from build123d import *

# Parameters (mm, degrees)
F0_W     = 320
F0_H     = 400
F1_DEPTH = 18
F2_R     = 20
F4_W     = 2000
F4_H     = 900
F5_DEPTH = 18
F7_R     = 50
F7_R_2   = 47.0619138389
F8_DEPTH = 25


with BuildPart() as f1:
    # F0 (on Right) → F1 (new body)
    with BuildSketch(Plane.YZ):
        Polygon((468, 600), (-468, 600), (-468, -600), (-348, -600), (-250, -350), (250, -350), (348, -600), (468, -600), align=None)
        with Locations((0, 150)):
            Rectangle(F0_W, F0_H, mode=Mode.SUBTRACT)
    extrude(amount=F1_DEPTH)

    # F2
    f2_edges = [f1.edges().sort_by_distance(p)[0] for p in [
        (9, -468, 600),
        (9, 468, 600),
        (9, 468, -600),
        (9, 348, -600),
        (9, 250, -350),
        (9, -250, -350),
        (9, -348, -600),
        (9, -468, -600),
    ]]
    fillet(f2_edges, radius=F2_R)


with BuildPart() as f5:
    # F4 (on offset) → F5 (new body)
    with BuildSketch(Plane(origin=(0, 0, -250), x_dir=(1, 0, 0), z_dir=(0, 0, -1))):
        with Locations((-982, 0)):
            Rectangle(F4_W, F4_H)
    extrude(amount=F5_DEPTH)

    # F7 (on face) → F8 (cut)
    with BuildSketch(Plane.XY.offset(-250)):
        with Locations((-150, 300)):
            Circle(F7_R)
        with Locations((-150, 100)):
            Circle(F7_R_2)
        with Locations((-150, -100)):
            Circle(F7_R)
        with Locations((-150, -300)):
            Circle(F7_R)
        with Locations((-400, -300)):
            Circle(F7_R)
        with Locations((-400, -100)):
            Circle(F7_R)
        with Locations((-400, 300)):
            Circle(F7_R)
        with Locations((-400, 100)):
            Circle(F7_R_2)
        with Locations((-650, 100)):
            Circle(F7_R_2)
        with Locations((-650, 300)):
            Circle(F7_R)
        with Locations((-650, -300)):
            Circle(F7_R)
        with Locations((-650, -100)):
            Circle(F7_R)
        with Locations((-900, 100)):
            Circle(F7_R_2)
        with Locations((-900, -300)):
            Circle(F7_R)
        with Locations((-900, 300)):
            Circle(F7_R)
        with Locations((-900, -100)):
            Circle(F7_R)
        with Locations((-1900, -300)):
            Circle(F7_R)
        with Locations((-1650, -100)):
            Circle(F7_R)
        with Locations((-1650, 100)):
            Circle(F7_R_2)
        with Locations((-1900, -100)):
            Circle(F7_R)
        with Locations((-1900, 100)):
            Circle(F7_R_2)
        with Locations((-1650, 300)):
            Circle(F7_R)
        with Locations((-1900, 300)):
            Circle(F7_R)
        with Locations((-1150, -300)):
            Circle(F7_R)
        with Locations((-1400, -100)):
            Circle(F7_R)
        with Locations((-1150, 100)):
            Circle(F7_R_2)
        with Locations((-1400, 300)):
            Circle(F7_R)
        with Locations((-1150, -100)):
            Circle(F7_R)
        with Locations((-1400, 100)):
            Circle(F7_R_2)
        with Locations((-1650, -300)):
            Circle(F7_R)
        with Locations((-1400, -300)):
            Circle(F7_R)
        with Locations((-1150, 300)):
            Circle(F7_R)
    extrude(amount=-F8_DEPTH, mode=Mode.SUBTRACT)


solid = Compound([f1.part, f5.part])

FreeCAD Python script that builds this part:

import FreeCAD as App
import Part
import Sketcher


def edges_at(feature, points):
    """Names of the edges that pass closest to the given points."""
    edges = feature.Shape.Edges
    near = lambda p: min(range(len(edges)), key=lambda i: edges[i].distToShape(Part.Vertex(*p))[0])
    return sorted({f"Edge{near(p) + 1}" for p in points})


def add_polygon(sketch, points):
    """Adds a closed chain of lines whose ends are joined by coincident constraints."""
    first, n = sketch.GeometryCount, len(points)
    for a, b in zip(points, points[1:] + points[:1]):
        sketch.addGeometry(Part.LineSegment(App.Vector(*a, 0), App.Vector(*b, 0)), False)
    for i in range(n):
        sketch.addConstraint(Sketcher.Constraint("Coincident", first + i, 2, first + (i + 1) % n, 1))

doc = App.newDocument("Part")
params = doc.addObject("Spreadsheet::Sheet", "Params")
for row, (alias, value) in enumerate([
    ("sketch1_width", "936 mm"),
    ("sketch1_width2", "120 mm"),
    ("sketch1_width3", "500 mm"),
    ("sketch1_width4", "320 mm"),
    ("sketch1_height", "1200 mm"),
    ("pad1_length", "18 mm"),
    ("fillet_radius", "20 mm"),
    ("sketch2_width", "2000 mm"),
    ("sketch2_height", "900 mm"),
    ("pad2_length", "18 mm"),
    ("sketch3_diameter", "100 mm"),
    ("pocket1_length", "25 mm"),
], start=1):
    params.set(f"A{row}", alias)
    params.set(f"B{row}", "=" + value)
    params.setAlias(f"B{row}", alias)

body = doc.addObject("PartDesign::Body", "Body")

# Sketch on YZ plane
sketch1 = body.newObject("Sketcher::SketchObject", "Sketch")
sketch1.AttachmentSupport = (doc.getObject("YZ_Plane"), [""])
sketch1.MapMode = "FlatFace"
add_polygon(sketch1, [(468, 600), (-468, 600), (-468, -600), (-348, -600), (-250, -350), (250, -350), (348, -600), (468, -600)])  # lines 0-7
add_polygon(sketch1, [(160, -50), (-160, -50), (-160, 350), (160, 350)])  # lines 8-11
sketch1.addConstraint(Sketcher.Constraint("Horizontal", 0))
sketch1.addConstraint(Sketcher.Constraint("Vertical", 1))
sketch1.addConstraint(Sketcher.Constraint("Horizontal", 2))
sketch1.addConstraint(Sketcher.Constraint("Horizontal", 4))
sketch1.addConstraint(Sketcher.Constraint("Horizontal", 6))
sketch1.addConstraint(Sketcher.Constraint("Vertical", 7))
sketch1.addConstraint(Sketcher.Constraint("Horizontal", 8))
sketch1.addConstraint(Sketcher.Constraint("Vertical", 9))
sketch1.addConstraint(Sketcher.Constraint("Horizontal", 10))
sketch1.addConstraint(Sketcher.Constraint("Vertical", 11))
sketch1.addConstraint(Sketcher.Constraint("Symmetric", 0, 2, 6, 2, -1, 1))
sketch1.addConstraint(Sketcher.Constraint("Symmetric", 2, 2, 5, 2, -2))
sketch1.addConstraint(Sketcher.Constraint("Equal", 3, 5))
sketch1.addConstraint(Sketcher.Constraint("DistanceX", 0, 2, 0, 1, 936.0))
sketch1.addConstraint(Sketcher.Constraint("DistanceX", 2, 1, 2, 2, 120.0))
sketch1.addConstraint(Sketcher.Constraint("DistanceX", 4, 1, 4, 2, 500.0))
sketch1.addConstraint(Sketcher.Constraint("DistanceX", 8, 2, 8, 1, 320.0))
sketch1.addConstraint(Sketcher.Constraint("DistanceY", 1, 2, 1, 1, 1200.0))
sketch1.addConstraint(Sketcher.Constraint("DistanceY", 9, 1, 9, 2, 400.0))
sketch1.addConstraint(Sketcher.Constraint("DistanceY", 3, 2, -1, 1, 350.0))
sketch1.addConstraint(Sketcher.Constraint("DistanceX", 8, 2, -1, 1, 160.0))
sketch1.addConstraint(Sketcher.Constraint("DistanceY", 8, 2, -1, 1, 50.0))
sketch1.setExpression("Constraints[25]", "Params.sketch1_width")
sketch1.setExpression("Constraints[26]", "Params.sketch1_width2")
sketch1.setExpression("Constraints[27]", "Params.sketch1_width3")
sketch1.setExpression("Constraints[28]", "Params.sketch1_width4")
sketch1.setExpression("Constraints[29]", "Params.sketch1_height")
pad1 = body.newObject("PartDesign::Pad", "Pad")
pad1.Profile = sketch1
pad1.setExpression("Length", "Params.pad1_length")
doc.recompute()

fillet = body.newObject("PartDesign::Fillet", "Fillet")
fillet.Base = (pad1, edges_at(pad1, [
    (9, -468, 600),
    (9, 468, 600),
    (9, 468, -600),
    (9, 348, -600),
    (9, 250, -350),
    (9, -250, -350),
    (9, -348, -600),
    (9, -468, -600),
]))
fillet.setExpression("Radius", "Params.fillet_radius")
body2 = doc.addObject("PartDesign::Body", "Body001")

# Sketch on XY plane
sketch2 = body2.newObject("Sketcher::SketchObject", "Sketch001")
sketch2.AttachmentSupport = (doc.getObject("XY_Plane001"), [""])
sketch2.MapMode = "FlatFace"
sketch2.AttachmentOffset = App.Placement(App.Vector(0, 0, -250), App.Rotation())
add_polygon(sketch2, [(-1982, -450), (-1982, 450), (18, 450), (18, -450)])  # lines 0-3
sketch2.addConstraint(Sketcher.Constraint("Vertical", 0))
sketch2.addConstraint(Sketcher.Constraint("Horizontal", 1))
sketch2.addConstraint(Sketcher.Constraint("Vertical", 2))
sketch2.addConstraint(Sketcher.Constraint("Horizontal", 3))
sketch2.addConstraint(Sketcher.Constraint("DistanceX", 1, 1, 1, 2, 2000.0))
sketch2.addConstraint(Sketcher.Constraint("DistanceY", 0, 1, 0, 2, 900.0))
sketch2.addConstraint(Sketcher.Constraint("DistanceX", 0, 2, -1, 1, 1982.0))
sketch2.addConstraint(Sketcher.Constraint("DistanceY", -1, 1, 0, 2, 450.0))
sketch2.setExpression("Constraints[8]", "Params.sketch2_width")
sketch2.setExpression("Constraints[9]", "Params.sketch2_height")
pad2 = body2.newObject("PartDesign::Pad", "Pad001")
pad2.Profile = sketch2
pad2.setExpression("Length", "Params.pad2_length")
pad2.Reversed = True

# Sketch on XY plane
sketch3 = body2.newObject("Sketcher::SketchObject", "Sketch002")
sketch3.AttachmentSupport = (doc.getObject("XY_Plane001"), [""])
sketch3.MapMode = "FlatFace"
sketch3.AttachmentOffset = App.Placement(App.Vector(0, 0, -250), App.Rotation())
sketch3.addGeometry(Part.Circle(App.Vector(-150, 300, 0), App.Vector(0, 0, 1), 50), False)
sketch3.addGeometry(Part.Circle(App.Vector(-150, 100, 0), App.Vector(0, 0, 1), 47), False)
sketch3.addGeometry(Part.Circle(App.Vector(-150, -100, 0), App.Vector(0, 0, 1), 50), False)
sketch3.addGeometry(Part.Circle(App.Vector(-150, -300, 0), App.Vector(0, 0, 1), 50), False)
sketch3.addGeometry(Part.Circle(App.Vector(-400, -300, 0), App.Vector(0, 0, 1), 50), False)
sketch3.addGeometry(Part.Circle(App.Vector(-400, -100, 0), App.Vector(0, 0, 1), 50), False)
sketch3.addGeometry(Part.Circle(App.Vector(-400, 300, 0), App.Vector(0, 0, 1), 50), False)
sketch3.addGeometry(Part.Circle(App.Vector(-400, 100, 0), App.Vector(0, 0, 1), 47), False)
sketch3.addGeometry(Part.Circle(App.Vector(-650, 100, 0), App.Vector(0, 0, 1), 47), False)
sketch3.addGeometry(Part.Circle(App.Vector(-650, 300, 0), App.Vector(0, 0, 1), 50), False)
sketch3.addGeometry(Part.Circle(App.Vector(-650, -300, 0), App.Vector(0, 0, 1), 50), False)
sketch3.addGeometry(Part.Circle(App.Vector(-650, -100, 0), App.Vector(0, 0, 1), 50), False)
sketch3.addGeometry(Part.Circle(App.Vector(-900, 100, 0), App.Vector(0, 0, 1), 47), False)
sketch3.addGeometry(Part.Circle(App.Vector(-900, -300, 0), App.Vector(0, 0, 1), 50), False)
sketch3.addGeometry(Part.Circle(App.Vector(-900, 300, 0), App.Vector(0, 0, 1), 50), False)
sketch3.addGeometry(Part.Circle(App.Vector(-900, -100, 0), App.Vector(0, 0, 1), 50), False)
sketch3.addGeometry(Part.Circle(App.Vector(-1900, -300, 0), App.Vector(0, 0, 1), 50), False)
sketch3.addGeometry(Part.Circle(App.Vector(-1650, -100, 0), App.Vector(0, 0, 1), 50), False)
sketch3.addGeometry(Part.Circle(App.Vector(-1650, 100, 0), App.Vector(0, 0, 1), 47), False)
sketch3.addGeometry(Part.Circle(App.Vector(-1900, -100, 0), App.Vector(0, 0, 1), 50), False)
sketch3.addGeometry(Part.Circle(App.Vector(-1900, 100, 0), App.Vector(0, 0, 1), 47), False)
sketch3.addGeometry(Part.Circle(App.Vector(-1650, 300, 0), App.Vector(0, 0, 1), 50), False)
sketch3.addGeometry(Part.Circle(App.Vector(-1900, 300, 0), App.Vector(0, 0, 1), 50), False)
sketch3.addGeometry(Part.Circle(App.Vector(-1150, -300, 0), App.Vector(0, 0, 1), 50), False)
sketch3.addGeometry(Part.Circle(App.Vector(-1400, -100, 0), App.Vector(0, 0, 1), 50), False)
sketch3.addGeometry(Part.Circle(App.Vector(-1150, 100, 0), App.Vector(0, 0, 1), 47), False)
sketch3.addGeometry(Part.Circle(App.Vector(-1400, 300, 0), App.Vector(0, 0, 1), 50), False)
sketch3.addGeometry(Part.Circle(App.Vector(-1150, -100, 0), App.Vector(0, 0, 1), 50), False)
sketch3.addGeometry(Part.Circle(App.Vector(-1400, 100, 0), App.Vector(0, 0, 1), 47), False)
sketch3.addGeometry(Part.Circle(App.Vector(-1650, -300, 0), App.Vector(0, 0, 1), 50), False)
sketch3.addGeometry(Part.Circle(App.Vector(-1400, -300, 0), App.Vector(0, 0, 1), 50), False)
sketch3.addGeometry(Part.Circle(App.Vector(-1150, 300, 0), App.Vector(0, 0, 1), 50), False)
sketch3.addConstraint(Sketcher.Constraint("Equal", 0, 2))
sketch3.addConstraint(Sketcher.Constraint("Equal", 2, 3))
sketch3.addConstraint(Sketcher.Constraint("Equal", 3, 4))
sketch3.addConstraint(Sketcher.Constraint("Equal", 4, 5))
sketch3.addConstraint(Sketcher.Constraint("Equal", 5, 6))
sketch3.addConstraint(Sketcher.Constraint("Equal", 1, 7))
sketch3.addConstraint(Sketcher.Constraint("Equal", 7, 8))
sketch3.addConstraint(Sketcher.Constraint("Equal", 6, 9))
sketch3.addConstraint(Sketcher.Constraint("Equal", 9, 10))
sketch3.addConstraint(Sketcher.Constraint("Equal", 10, 11))
sketch3.addConstraint(Sketcher.Constraint("Equal", 8, 12))
sketch3.addConstraint(Sketcher.Constraint("Equal", 11, 13))
sketch3.addConstraint(Sketcher.Constraint("Equal", 13, 14))
sketch3.addConstraint(Sketcher.Constraint("Equal", 14, 15))
sketch3.addConstraint(Sketcher.Constraint("Equal", 15, 16))
sketch3.addConstraint(Sketcher.Constraint("Equal", 16, 17))
sketch3.addConstraint(Sketcher.Constraint("Equal", 12, 18))
sketch3.addConstraint(Sketcher.Constraint("Equal", 17, 19))
sketch3.addConstraint(Sketcher.Constraint("Equal", 18, 20))
sketch3.addConstraint(Sketcher.Constraint("Equal", 19, 21))
sketch3.addConstraint(Sketcher.Constraint("Equal", 21, 22))
sketch3.addConstraint(Sketcher.Constraint("Equal", 22, 23))
sketch3.addConstraint(Sketcher.Constraint("Equal", 23, 24))
sketch3.addConstraint(Sketcher.Constraint("Equal", 20, 25))
sketch3.addConstraint(Sketcher.Constraint("Equal", 24, 26))
sketch3.addConstraint(Sketcher.Constraint("Equal", 26, 27))
sketch3.addConstraint(Sketcher.Constraint("Equal", 25, 28))
sketch3.addConstraint(Sketcher.Constraint("Equal", 27, 29))
sketch3.addConstraint(Sketcher.Constraint("Equal", 29, 30))
sketch3.addConstraint(Sketcher.Constraint("Equal", 30, 31))
sketch3.addConstraint(Sketcher.Constraint("Symmetric", 1, 3, 2, 3, -1))
sketch3.addConstraint(Sketcher.Constraint("Symmetric", 0, 3, 3, 3, -1))
sketch3.addConstraint(Sketcher.Constraint("Symmetric", 4, 3, 6, 3, -1))
sketch3.addConstraint(Sketcher.Constraint("Symmetric", 5, 3, 7, 3, -1))
sketch3.addConstraint(Sketcher.Constraint("Symmetric", 9, 3, 10, 3, -1))
sketch3.addConstraint(Sketcher.Constraint("Symmetric", 8, 3, 11, 3, -1))
sketch3.addConstraint(Sketcher.Constraint("Symmetric", 13, 3, 14, 3, -1))
sketch3.addConstraint(Sketcher.Constraint("Symmetric", 12, 3, 15, 3, -1))
sketch3.addConstraint(Sketcher.Constraint("Symmetric", 17, 3, 18, 3, -1))
sketch3.addConstraint(Sketcher.Constraint("Symmetric", 19, 3, 20, 3, -1))
sketch3.addConstraint(Sketcher.Constraint("Symmetric", 16, 3, 22, 3, -1))
sketch3.addConstraint(Sketcher.Constraint("Symmetric", 25, 3, 27, 3, -1))
sketch3.addConstraint(Sketcher.Constraint("Symmetric", 24, 3, 28, 3, -1))
sketch3.addConstraint(Sketcher.Constraint("Symmetric", 21, 3, 29, 3, -1))
sketch3.addConstraint(Sketcher.Constraint("Symmetric", 26, 3, 30, 3, -1))
sketch3.addConstraint(Sketcher.Constraint("Symmetric", 23, 3, 31, 3, -1))
sketch3.addConstraint(Sketcher.Constraint("Horizontal", 3, 3, 4, 3))
sketch3.addConstraint(Sketcher.Constraint("Horizontal", 2, 3, 5, 3))
sketch3.addConstraint(Sketcher.Constraint("Horizontal", 7, 3, 8, 3))
sketch3.addConstraint(Sketcher.Constraint("Horizontal", 6, 3, 9, 3))
sketch3.addConstraint(Sketcher.Constraint("Horizontal", 8, 3, 12, 3))
sketch3.addConstraint(Sketcher.Constraint("Horizontal", 10, 3, 13, 3))
sketch3.addConstraint(Sketcher.Constraint("Horizontal", 13, 3, 16, 3))
sketch3.addConstraint(Sketcher.Constraint("Horizontal", 15, 3, 17, 3))
sketch3.addConstraint(Sketcher.Constraint("Horizontal", 17, 3, 19, 3))
sketch3.addConstraint(Sketcher.Constraint("Horizontal", 14, 3, 21, 3))
sketch3.addConstraint(Sketcher.Constraint("Horizontal", 16, 3, 23, 3))
sketch3.addConstraint(Sketcher.Constraint("Horizontal", 19, 3, 24, 3))
sketch3.addConstraint(Sketcher.Constraint("Horizontal", 20, 3, 25, 3))
sketch3.addConstraint(Sketcher.Constraint("Horizontal", 22, 3, 26, 3))
sketch3.addConstraint(Sketcher.Constraint("Vertical", 0, 3, 1, 3))
sketch3.addConstraint(Sketcher.Constraint("Vertical", 4, 3, 5, 3))
sketch3.addConstraint(Sketcher.Constraint("Vertical", 8, 3, 9, 3))
sketch3.addConstraint(Sketcher.Constraint("Vertical", 12, 3, 13, 3))
sketch3.addConstraint(Sketcher.Constraint("Vertical", 16, 3, 19, 3))
sketch3.addConstraint(Sketcher.Constraint("Vertical", 18, 3, 21, 3))
sketch3.addConstraint(Sketcher.Constraint("Vertical", 23, 3, 25, 3))
sketch3.addConstraint(Sketcher.Constraint("Vertical", 24, 3, 26, 3))
sketch3.addConstraint(Sketcher.Constraint("Diameter", 0, 100.0))
sketch3.addConstraint(Sketcher.Constraint("DistanceX", 0, 3, -1, 1, 150.0))
sketch3.addConstraint(Sketcher.Constraint("DistanceY", -1, 1, 0, 3, 300.0))
sketch3.addConstraint(Sketcher.Constraint("DistanceY", -1, 1, 1, 3, 100.0))
sketch3.addConstraint(Sketcher.Constraint("DistanceX", 4, 3, -1, 1, 400.0))
sketch3.addConstraint(Sketcher.Constraint("DistanceX", 8, 3, -1, 1, 650.0))
sketch3.addConstraint(Sketcher.Constraint("DistanceX", 12, 3, -1, 1, 900.0))
sketch3.addConstraint(Sketcher.Constraint("DistanceX", 16, 3, -1, 1, 1900.0))
sketch3.addConstraint(Sketcher.Constraint("DistanceX", 17, 3, -1, 1, 1650.0))
sketch3.addConstraint(Sketcher.Constraint("DistanceX", 23, 3, -1, 1, 1150.0))
sketch3.addConstraint(Sketcher.Constraint("DistanceX", 24, 3, -1, 1, 1400.0))
sketch3.addConstraint(Sketcher.Constraint("Diameter", 1, 94.123828))
sketch3.setExpression("Constraints[68]", "Params.sketch3_diameter")
pocket1 = body2.newObject("PartDesign::Pocket", "Pocket")
pocket1.Profile = sketch3
pocket1.setExpression("Length", "Params.pocket1_length")

doc.recompute()
